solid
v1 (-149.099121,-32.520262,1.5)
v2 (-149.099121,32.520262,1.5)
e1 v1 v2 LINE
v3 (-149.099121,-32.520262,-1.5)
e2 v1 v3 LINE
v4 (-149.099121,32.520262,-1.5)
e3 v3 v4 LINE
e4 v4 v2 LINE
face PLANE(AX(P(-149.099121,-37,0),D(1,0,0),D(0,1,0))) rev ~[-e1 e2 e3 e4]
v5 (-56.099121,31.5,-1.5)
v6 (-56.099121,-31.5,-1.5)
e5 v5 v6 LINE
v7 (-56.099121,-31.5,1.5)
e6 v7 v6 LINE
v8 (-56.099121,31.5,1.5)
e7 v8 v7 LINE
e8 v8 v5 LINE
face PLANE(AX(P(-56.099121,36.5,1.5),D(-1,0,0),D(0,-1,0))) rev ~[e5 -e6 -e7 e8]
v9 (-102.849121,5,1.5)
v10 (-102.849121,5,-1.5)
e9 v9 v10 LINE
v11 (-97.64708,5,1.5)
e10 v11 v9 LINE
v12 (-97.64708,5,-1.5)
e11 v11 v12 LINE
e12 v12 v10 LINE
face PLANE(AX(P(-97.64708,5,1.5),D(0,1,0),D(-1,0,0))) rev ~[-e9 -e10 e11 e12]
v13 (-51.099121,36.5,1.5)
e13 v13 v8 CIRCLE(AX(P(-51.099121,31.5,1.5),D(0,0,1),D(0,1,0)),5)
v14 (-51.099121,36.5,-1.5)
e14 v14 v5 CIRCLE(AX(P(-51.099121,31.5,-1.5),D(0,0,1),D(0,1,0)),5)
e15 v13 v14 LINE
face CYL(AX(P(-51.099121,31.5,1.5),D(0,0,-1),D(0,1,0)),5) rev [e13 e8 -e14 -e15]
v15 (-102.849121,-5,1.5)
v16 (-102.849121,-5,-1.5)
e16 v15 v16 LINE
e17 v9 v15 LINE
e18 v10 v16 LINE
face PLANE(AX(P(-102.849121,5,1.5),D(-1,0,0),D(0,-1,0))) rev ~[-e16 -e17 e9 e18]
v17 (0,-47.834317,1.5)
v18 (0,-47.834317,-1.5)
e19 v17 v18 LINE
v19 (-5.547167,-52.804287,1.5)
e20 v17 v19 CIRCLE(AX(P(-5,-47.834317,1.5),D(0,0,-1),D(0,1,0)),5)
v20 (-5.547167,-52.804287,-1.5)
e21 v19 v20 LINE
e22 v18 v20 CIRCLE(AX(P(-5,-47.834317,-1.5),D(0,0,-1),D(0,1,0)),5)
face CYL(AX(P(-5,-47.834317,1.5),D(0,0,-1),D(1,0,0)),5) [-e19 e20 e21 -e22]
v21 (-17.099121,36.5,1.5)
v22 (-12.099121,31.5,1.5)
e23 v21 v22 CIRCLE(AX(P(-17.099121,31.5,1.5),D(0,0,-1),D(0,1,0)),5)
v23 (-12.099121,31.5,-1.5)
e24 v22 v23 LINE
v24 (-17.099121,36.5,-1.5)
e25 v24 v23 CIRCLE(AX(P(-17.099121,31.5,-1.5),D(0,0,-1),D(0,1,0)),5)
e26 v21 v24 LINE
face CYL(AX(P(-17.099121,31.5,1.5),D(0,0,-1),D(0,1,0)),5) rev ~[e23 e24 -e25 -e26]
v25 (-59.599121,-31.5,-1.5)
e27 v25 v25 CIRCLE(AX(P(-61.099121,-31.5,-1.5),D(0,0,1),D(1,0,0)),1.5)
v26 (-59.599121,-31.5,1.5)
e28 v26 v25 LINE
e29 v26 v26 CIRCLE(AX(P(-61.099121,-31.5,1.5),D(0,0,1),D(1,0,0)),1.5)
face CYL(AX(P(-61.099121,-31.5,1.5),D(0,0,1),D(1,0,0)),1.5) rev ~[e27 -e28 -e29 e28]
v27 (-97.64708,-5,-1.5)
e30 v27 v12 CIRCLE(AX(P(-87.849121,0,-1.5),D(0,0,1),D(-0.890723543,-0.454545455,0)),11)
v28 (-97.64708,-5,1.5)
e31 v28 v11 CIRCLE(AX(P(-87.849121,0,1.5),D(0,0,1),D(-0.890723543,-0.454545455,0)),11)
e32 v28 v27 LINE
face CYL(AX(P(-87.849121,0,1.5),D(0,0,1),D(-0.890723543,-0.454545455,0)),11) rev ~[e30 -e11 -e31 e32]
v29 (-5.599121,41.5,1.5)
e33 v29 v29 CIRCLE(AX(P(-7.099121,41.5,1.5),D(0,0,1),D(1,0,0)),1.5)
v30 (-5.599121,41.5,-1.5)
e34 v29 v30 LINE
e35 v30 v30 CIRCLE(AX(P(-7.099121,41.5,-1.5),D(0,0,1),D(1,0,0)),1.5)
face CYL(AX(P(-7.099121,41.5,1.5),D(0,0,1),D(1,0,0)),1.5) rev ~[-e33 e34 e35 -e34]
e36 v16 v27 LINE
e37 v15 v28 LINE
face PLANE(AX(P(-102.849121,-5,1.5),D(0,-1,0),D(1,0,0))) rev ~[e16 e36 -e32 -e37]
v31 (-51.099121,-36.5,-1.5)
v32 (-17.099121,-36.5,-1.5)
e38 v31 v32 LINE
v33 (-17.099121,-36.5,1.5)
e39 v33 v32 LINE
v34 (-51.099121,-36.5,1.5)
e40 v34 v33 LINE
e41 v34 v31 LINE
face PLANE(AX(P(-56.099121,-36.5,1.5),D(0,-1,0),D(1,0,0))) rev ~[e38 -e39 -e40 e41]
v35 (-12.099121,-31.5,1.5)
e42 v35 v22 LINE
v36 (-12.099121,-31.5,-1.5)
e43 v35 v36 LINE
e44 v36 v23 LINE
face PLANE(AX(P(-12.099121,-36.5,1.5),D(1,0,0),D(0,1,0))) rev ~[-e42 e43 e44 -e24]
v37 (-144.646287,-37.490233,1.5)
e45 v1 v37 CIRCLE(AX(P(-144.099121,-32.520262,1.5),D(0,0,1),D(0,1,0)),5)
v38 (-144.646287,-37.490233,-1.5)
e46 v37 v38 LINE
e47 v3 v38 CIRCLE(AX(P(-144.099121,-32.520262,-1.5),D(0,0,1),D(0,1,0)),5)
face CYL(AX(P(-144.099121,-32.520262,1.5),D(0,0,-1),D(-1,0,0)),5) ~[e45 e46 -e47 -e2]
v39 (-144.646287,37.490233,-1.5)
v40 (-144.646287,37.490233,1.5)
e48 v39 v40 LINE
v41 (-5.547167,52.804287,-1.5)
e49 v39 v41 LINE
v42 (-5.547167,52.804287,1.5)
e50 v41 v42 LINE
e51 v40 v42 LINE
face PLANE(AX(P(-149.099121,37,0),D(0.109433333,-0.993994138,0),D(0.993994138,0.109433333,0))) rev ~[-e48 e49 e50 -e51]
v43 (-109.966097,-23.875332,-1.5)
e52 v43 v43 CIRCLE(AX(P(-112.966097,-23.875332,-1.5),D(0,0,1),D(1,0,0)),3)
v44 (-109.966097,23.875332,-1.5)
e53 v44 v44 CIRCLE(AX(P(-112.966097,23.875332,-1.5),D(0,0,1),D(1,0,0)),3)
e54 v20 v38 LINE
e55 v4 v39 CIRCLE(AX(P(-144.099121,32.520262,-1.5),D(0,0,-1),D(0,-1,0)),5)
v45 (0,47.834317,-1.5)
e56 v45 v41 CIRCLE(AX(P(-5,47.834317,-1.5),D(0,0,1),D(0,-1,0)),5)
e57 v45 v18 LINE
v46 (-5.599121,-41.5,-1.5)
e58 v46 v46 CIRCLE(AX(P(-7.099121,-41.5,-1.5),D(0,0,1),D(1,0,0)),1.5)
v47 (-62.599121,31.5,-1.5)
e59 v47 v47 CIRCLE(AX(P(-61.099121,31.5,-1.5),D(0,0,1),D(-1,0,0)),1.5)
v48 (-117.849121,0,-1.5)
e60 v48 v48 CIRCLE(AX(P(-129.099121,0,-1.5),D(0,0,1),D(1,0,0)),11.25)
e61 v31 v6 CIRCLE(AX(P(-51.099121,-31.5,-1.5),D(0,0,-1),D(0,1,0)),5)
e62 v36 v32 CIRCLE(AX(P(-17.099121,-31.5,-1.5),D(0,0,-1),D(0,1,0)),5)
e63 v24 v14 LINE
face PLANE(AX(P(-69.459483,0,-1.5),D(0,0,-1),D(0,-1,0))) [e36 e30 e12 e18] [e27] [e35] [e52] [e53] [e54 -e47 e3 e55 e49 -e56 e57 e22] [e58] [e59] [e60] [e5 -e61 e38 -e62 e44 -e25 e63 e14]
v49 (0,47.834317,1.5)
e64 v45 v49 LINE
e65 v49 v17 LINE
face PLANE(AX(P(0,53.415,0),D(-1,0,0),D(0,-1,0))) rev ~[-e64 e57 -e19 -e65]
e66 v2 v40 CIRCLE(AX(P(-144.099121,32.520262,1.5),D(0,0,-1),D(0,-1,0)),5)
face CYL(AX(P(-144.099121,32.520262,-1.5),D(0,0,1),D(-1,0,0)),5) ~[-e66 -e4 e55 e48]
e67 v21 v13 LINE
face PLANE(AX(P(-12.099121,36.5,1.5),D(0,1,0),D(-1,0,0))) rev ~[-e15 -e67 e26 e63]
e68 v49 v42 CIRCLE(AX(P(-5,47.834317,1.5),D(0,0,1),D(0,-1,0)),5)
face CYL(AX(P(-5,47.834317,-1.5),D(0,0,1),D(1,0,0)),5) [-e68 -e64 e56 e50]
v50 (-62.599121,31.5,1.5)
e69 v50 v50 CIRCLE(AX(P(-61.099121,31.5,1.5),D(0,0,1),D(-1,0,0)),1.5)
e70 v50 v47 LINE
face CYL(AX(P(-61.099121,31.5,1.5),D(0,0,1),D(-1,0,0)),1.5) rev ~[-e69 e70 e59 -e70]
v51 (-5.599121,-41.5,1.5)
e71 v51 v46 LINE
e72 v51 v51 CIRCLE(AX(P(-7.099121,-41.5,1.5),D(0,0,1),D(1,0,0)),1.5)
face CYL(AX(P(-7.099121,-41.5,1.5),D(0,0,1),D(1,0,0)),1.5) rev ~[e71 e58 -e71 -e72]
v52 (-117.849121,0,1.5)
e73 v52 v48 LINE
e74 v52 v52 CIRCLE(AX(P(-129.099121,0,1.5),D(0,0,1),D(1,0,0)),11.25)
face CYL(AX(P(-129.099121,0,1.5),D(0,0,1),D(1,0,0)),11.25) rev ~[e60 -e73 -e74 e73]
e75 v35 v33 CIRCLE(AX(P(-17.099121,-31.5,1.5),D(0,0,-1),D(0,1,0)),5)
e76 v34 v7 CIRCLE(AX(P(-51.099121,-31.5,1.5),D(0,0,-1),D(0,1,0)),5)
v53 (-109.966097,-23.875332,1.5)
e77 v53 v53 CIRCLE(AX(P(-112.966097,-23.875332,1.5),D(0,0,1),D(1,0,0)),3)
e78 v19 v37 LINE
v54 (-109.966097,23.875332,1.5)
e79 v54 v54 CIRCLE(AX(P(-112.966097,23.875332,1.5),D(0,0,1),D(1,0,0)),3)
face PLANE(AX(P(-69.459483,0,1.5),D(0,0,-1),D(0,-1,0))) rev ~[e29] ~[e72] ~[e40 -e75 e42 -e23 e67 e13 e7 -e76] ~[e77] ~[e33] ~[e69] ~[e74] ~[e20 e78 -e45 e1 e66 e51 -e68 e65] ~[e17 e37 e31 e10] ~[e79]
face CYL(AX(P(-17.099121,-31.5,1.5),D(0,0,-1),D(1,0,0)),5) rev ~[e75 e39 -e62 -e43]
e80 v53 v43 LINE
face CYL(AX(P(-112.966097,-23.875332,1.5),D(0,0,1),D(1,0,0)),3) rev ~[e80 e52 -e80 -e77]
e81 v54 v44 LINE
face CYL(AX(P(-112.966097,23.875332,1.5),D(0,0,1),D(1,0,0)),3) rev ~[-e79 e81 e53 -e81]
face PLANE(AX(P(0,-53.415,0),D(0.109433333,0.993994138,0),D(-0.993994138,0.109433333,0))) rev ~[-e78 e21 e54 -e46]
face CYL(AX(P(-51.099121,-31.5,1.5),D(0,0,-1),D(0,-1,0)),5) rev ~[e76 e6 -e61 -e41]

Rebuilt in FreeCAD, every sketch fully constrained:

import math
import FreeCAD as App
import Part
import Sketcher
from FreeCAD import Vector
Q = App.Units.Quantity


def edges_at(feature, points):
    """Names of the edges that pass closest to the given points."""
    edges = feature.Shape.Edges
    near = lambda p: min(range(len(edges)), key=lambda i: edges[i].distToShape(Part.Vertex(*p))[0])
    return sorted({f"Edge{near(p) + 1}" for p in points})


def add_polygon(sketch, points):
    """Adds a closed chain of lines whose ends are joined by coincident constraints."""
    first, n = sketch.GeometryCount, len(points)
    for a, b in zip(points, points[1:] + points[:1]):
        sketch.addGeometry(Part.LineSegment(App.Vector(*a, 0), App.Vector(*b, 0)), False)
    for i in range(n):
        sketch.addConstraint(Sketcher.Constraint("Coincident", first + i, 2, first + (i + 1) % n, 1))

doc = App.newDocument("Part")
body = doc.addObject("PartDesign::Body", "Body")

# Sketch on XY plane
sketch1 = body.newObject("Sketcher::SketchObject", "Sketch")
sketch1.AttachmentSupport = (doc.getObject("XY_Plane"), [""])
sketch1.MapMode = "FlatFace"
add_polygon(sketch1, [(0, -53), (0, 53), (-149, 37), (-149, -37)])  # lines 0-3
sketch1.addConstraint(Sketcher.Constraint("Vertical", 0))
sketch1.addConstraint(Sketcher.Constraint("Vertical", 2))
sketch1.addConstraint(Sketcher.Constraint("Symmetric", 0, 2, 3, 2, -1, 1))
sketch1.addConstraint(Sketcher.Constraint("Equal", 1, 3))
sketch1.addConstraint(Sketcher.Constraint("DistanceY", 2, 2, 2, 1, Q("74 mm")))
sketch1.addConstraint(Sketcher.Constraint("Distance", 1, Q("150 mm")))
sketch1.addConstraint(Sketcher.Constraint("DistanceY", 0, 1, 0, 2, Q("106.83 mm")))
pad1 = body.newObject("PartDesign::Pad", "Pad")
pad1.Profile = sketch1
pad1.Length = 3
pad1.Midplane = True
doc.recompute()

fillet = body.newObject("PartDesign::Fillet", "Fillet")
fillet.Base = (pad1, edges_at(pad1, [
    (-149.099, -37, 0),
    (-149.099, 37, 0),
    (0, 53.415, 0),
    (0, -53.415, 0),
]))
fillet.Radius = 5

# Sketch on XY plane
sketch2 = body.newObject("Sketcher::SketchObject", "Sketch001")
sketch2.AttachmentSupport = (doc.getObject("XY_Plane"), [""])
sketch2.MapMode = "FlatFace"
sketch2.AttachmentOffset = App.Placement(Vector(0, 0, 1.5), App.Rotation())
sketch2.addGeometry(Part.Circle(Vector(-129.1, 0, 0), Vector(0, 0, 1), 11.2), False)  # 0
add_polygon(sketch2, [(-56.1, 36.5), (-56.1, -36.5), (-12.1, -36.5), (-12.1, 36.5)])  # lines 1-4
sketch2.addGeometry(Part.LineSegment(Vector(-102.8, 5, 0), Vector(-102.8, -5, 0)), False)  # 5
sketch2.addGeometry(Part.LineSegment(Vector(-102.8, -5, 0), Vector(-97.6, -5, 0)), False)  # 6
sketch2.addGeometry(Part.ArcOfCircle(Part.Circle(Vector(-87.8, 0, 0), Vector(0, 0, 1), 11), math.radians(-153), math.radians(153)), False)  # 7
sketch2.addGeometry(Part.LineSegment(Vector(-97.6, 5, 0), Vector(-102.8, 5, 0)), False)  # 8
sketch2.addGeometry(Part.Circle(Vector(-7.1, 41.5, 0), Vector(0, 0, 1), 1.5), False)  # 9
sketch2.addGeometry(Part.Circle(Vector(-7.1, -41.5, 0), Vector(0, 0, 1), 1.5), False)  # 10
sketch2.addGeometry(Part.Circle(Vector(-61.1, -31.5, 0), Vector(0, 0, 1), 1.5), False)  # 11
sketch2.addGeometry(Part.Circle(Vector(-61.1, 31.5, 0), Vector(0, 0, 1), 1.5), False)  # 12
sketch2.addConstraint(Sketcher.Constraint("Coincident", 5, 2, 6, 1))
sketch2.addConstraint(Sketcher.Constraint("Coincident", 6, 2, 7, 1))
sketch2.addConstraint(Sketcher.Constraint("Coincident", 7, 2, 8, 1))
sketch2.addConstraint(Sketcher.Constraint("Coincident", 8, 2, 5, 1))
sketch2.addConstraint(Sketcher.Constraint("Vertical", 1))
sketch2.addConstraint(Sketcher.Constraint("Horizontal", 2))
sketch2.addConstraint(Sketcher.Constraint("Vertical", 3))
sketch2.addConstraint(Sketcher.Constraint("Horizontal", 4))
sketch2.addConstraint(Sketcher.Constraint("Vertical", 5))
sketch2.addConstraint(Sketcher.Constraint("Horizontal", 6))
sketch2.addConstraint(Sketcher.Constraint("Horizontal", 8))
sketch2.addConstraint(Sketcher.Constraint("Equal", 9, 10))
sketch2.addConstraint(Sketcher.Constraint("Equal", 10, 11))
sketch2.addConstraint(Sketcher.Constraint("Equal", 11, 12))
sketch2.addConstraint(Sketcher.Constraint("Symmetric", 9, 3, 10, 3, -1))
sketch2.addConstraint(Sketcher.Constraint("Symmetric", 11, 3, 12, 3, -1))
sketch2.addConstraint(Sketcher.Constraint("Symmetric", 6, 2, 7, 2, -1))
sketch2.addConstraint(Sketcher.Constraint("PointOnObject", 0, 3, -1))
sketch2.addConstraint(Sketcher.Constraint("Diameter", 9, Q("3 mm")))
sketch2.addConstraint(Sketcher.Constraint("Radius", 7, Q("11 mm")))
sketch2.addConstraint(Sketcher.Constraint("Diameter", 0, Q("22.5 mm")))
sketch2.addConstraint(Sketcher.Constraint("DistanceX", 2, 1, 2, 2, Q("44 mm")))
sketch2.addConstraint(Sketcher.Constraint("DistanceY", 1, 2, 1, 1, Q("73 mm")))
sketch2.addConstraint(Sketcher.Constraint("DistanceY", 5, 2, 5, 1, Q("10 mm")))
sketch2.addConstraint(Sketcher.Constraint("DistanceX", 0, 3, 9, 3, Q("122 mm")))
sketch2.addConstraint(Sketcher.Constraint("DistanceY", 10, 3, 9, 3, Q("83 mm")))
sketch2.addConstraint(Sketcher.Constraint("DistanceX", 11, 3, 10, 3, Q("54 mm")))
sketch2.addConstraint(Sketcher.Constraint("DistanceY", 10, 3, 11, 3, Q("10 mm")))
sketch2.addConstraint(Sketcher.Constraint("DistanceX", 11, 3, 1, 2, Q("5 mm")))
sketch2.addConstraint(Sketcher.Constraint("DistanceY", 1, 2, 11, 3, Q("5 mm")))
sketch2.addConstraint(Sketcher.Constraint("DistanceX", 5, 2, 7, 3, Q("15 mm")))
sketch2.addConstraint(Sketcher.Constraint("DistanceX", 0, 3, 7, 3, Q("41.25 mm")))
sketch2.addConstraint(Sketcher.Constraint("DistanceX", 0, 3, -1, 1, Q("129.099121 mm")))
pocket1 = body.newObject("PartDesign::Pocket", "Pocket")
pocket1.Profile = sketch2
pocket1.Length = 3
doc.recompute()

fillet2 = body.newObject("PartDesign::Fillet", "Fillet001")
fillet2.Base = (pocket1, edges_at(pocket1, [
    (-56.099, -36.5, 0),
    (-56.099, 36.5, 0),
    (-12.099, 36.5, 0),
    (-12.099, -36.5, 0),
]))
fillet2.Radius = 5

# Sketch on XY plane
sketch3 = body.newObject("Sketcher::SketchObject", "Sketch002")
sketch3.AttachmentSupport = (doc.getObject("XY_Plane"), [""])
sketch3.MapMode = "FlatFace"
sketch3.AttachmentOffset = App.Placement(Vector(0, 0, 1.5), App.Rotation())
sketch3.addGeometry(Part.Circle(Vector(-113, -23.9, 0), Vector(0, 0, 1), 3), False)
sketch3.addConstraint(Sketcher.Constraint("Diameter", 0, Q("6 mm")))
sketch3.addConstraint(Sketcher.Constraint("DistanceX", 0, 3, -1, 1, Q("112.966097 mm")))
sketch3.addConstraint(Sketcher.Constraint("DistanceY", 0, 3, -1, 1, Q("23.875332 mm")))
pocket2 = body.newObject("PartDesign::Pocket", "Pocket001")
pocket2.Profile = sketch3
pocket2.Type = "UpToFirst"

# Sketch on XY plane
sketch4 = body.newObject("Sketcher::SketchObject", "Sketch003")
sketch4.AttachmentSupport = (doc.getObject("XY_Plane"), [""])
sketch4.MapMode = "FlatFace"
sketch4.AttachmentOffset = App.Placement(Vector(0, 0, 1.5), App.Rotation())
sketch4.addGeometry(Part.Circle(Vector(-113, 23.9, 0), Vector(0, 0, 1), 3), False)
sketch4.addConstraint(Sketcher.Constraint("Diameter", 0, Q("6 mm")))
sketch4.addConstraint(Sketcher.Constraint("DistanceX", 0, 3, -1, 1, Q("112.966097 mm")))
sketch4.addConstraint(Sketcher.Constraint("DistanceY", -1, 1, 0, 3, Q("23.875332 mm")))
pocket3 = body.newObject("PartDesign::Pocket", "Pocket002")
pocket3.Profile = sketch4
pocket3.Type = "UpToFirst"

doc.recompute()
